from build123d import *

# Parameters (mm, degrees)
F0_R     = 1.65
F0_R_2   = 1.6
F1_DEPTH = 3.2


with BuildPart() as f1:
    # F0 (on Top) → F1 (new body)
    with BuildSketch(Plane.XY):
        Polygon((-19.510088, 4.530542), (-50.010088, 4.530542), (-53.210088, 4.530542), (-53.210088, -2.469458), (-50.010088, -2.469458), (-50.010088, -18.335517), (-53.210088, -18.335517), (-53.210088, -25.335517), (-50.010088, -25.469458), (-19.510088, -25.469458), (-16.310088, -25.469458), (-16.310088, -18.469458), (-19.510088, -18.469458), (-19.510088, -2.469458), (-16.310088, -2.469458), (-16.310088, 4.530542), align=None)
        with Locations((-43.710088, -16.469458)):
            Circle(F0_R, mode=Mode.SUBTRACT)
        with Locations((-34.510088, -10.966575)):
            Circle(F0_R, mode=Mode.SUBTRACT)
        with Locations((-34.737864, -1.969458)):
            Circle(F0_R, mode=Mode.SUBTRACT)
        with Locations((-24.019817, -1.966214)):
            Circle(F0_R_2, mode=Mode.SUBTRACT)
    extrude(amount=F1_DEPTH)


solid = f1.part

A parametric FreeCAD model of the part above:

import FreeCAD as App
import Part
import Sketcher
from FreeCAD import Vector

doc = App.newDocument("Part")
body = doc.addObject("PartDesign::Body", "Body")

sketch1 = doc.addObject("Sketcher::SketchObject", "Sketch")
body.addObject(sketch1)
sketch1.AttachmentSupport = (doc.XY_Plane, [""])
sketch1.MapMode = "FlatFace"
sketch1.addGeometry([
    Part.LineSegment(Vector(-53.2, 4.5, 0), Vector(-53.2, -2.5, 0)),
    Part.LineSegment(Vector(-53.2, -2.5, 0), Vector(-50, -2.5, 0)),
    Part.LineSegment(Vector(-50, -2.5, 0), Vector(-50, -18.3, 0)),
    Part.LineSegment(Vector(-50, -18.3, 0), Vector(-53.2, -18.3, 0)),
    Part.LineSegment(Vector(-53.2, -18.3, 0), Vector(-53.2, -25.3, 0)),
    Part.LineSegment(Vector(-53.2, -25.3, 0), Vector(-50, -25.5, 0)),
    Part.LineSegment(Vector(-50, -25.5, 0), Vector(-16.3, -25.5, 0)),
    Part.LineSegment(Vector(-16.3, -25.5, 0), Vector(-16.3, -18.5, 0)),
    Part.LineSegment(Vector(-16.3, -18.5, 0), Vector(-19.5, -18.5, 0)),
    Part.LineSegment(Vector(-19.5, -18.5, 0), Vector(-19.5, -2.5, 0)),
    Part.LineSegment(Vector(-19.5, -2.5, 0), Vector(-16.3, -2.5, 0)),
    Part.LineSegment(Vector(-16.3, -2.5, 0), Vector(-16.3, 4.5, 0)),
    Part.LineSegment(Vector(-16.3, 4.5, 0), Vector(-53.2, 4.5, 0)),
    Part.Circle(Vector(-43.7, -16.5, 0), Vector(0, 0, 1), 1.6),
    Part.Circle(Vector(-34.5, -11, 0), Vector(0, 0, 1), 1.6),
    Part.Circle(Vector(-34.7, -2, 0), Vector(0, 0, 1), 1.6),
    Part.Circle(Vector(-24, -2, 0), Vector(0, 0, 1), 1.6),
], False)
sketch1.addConstraint([
    Sketcher.Constraint("Coincident", 0, 2, 1, 1),
    Sketcher.Constraint("Coincident", 1, 2, 2, 1),
    Sketcher.Constraint("Coincident", 2, 2, 3, 1),
    Sketcher.Constraint("Coincident", 3, 2, 4, 1),
    Sketcher.Constraint("Coincident", 4, 2, 5, 1),
    Sketcher.Constraint("Coincident", 5, 2, 6, 1),
    Sketcher.Constraint("Coincident", 6, 2, 7, 1),
    Sketcher.Constraint("Coincident", 7, 2, 8, 1),
    Sketcher.Constraint("Coincident", 8, 2, 9, 1),
    Sketcher.Constraint("Coincident", 9, 2, 10, 1),
    Sketcher.Constraint("Coincident", 10, 2, 11, 1),
    Sketcher.Constraint("Coincident", 11, 2, 12, 1),
    Sketcher.Constraint("Coincident", 12, 2, 0, 1),
    Sketcher.Constraint("Vertical", 0),
    Sketcher.Constraint("Horizontal", 1),
    Sketcher.Constraint("Vertical", 2),
    Sketcher.Constraint("Horizontal", 3),
    Sketcher.Constraint("Vertical", 4),
    Sketcher.Constraint("Horizontal", 6),
    Sketcher.Constraint("Vertical", 7),
    Sketcher.Constraint("Horizontal", 8),
    Sketcher.Constraint("Vertical", 9),
    Sketcher.Constraint("Horizontal", 10),
    Sketcher.Constraint("Vertical", 11),
    Sketcher.Constraint("Horizontal", 12),
    Sketcher.Constraint("Equal", 13, 14),
    Sketcher.Constraint("Equal", 14, 15),
    Sketcher.Constraint("Horizontal", 1, 2, 9, 2),
    Sketcher.Constraint("Vertical", 0, 2, 3, 2),
    Sketcher.Constraint("Vertical", 2, 2, 5, 2),
    Sketcher.Constraint("Vertical", 7, 2, 10, 2),
    Sketcher.Constraint("Equal", 3, 8),
    Sketcher.Constraint("Equal", 0, 4),
    Sketcher.Constraint("Equal", 4, 7),
    Sketcher.Constraint("Diameter", 13, 3.3),
    Sketcher.Constraint("Diameter", 16, 3.2),
    Sketcher.Constraint("DistanceY", 0, 2, 0, 1, 7.0),
    Sketcher.Constraint("DistanceY", 9, 1, 9, 2, 16.0),
    Sketcher.Constraint("DistanceX", 1, 1, 1, 2, 3.2),
    Sketcher.Constraint("DistanceX", 6, 1, 6, 2, 33.7),
    Sketcher.Constraint("DistanceY", 13, 3, 0, 2, 14.0),
    Sketcher.Constraint("DistanceX", 14, 3, 8, 2, 15.0),
    Sketcher.Constraint("DistanceX", 13, 3, 14, 3, 9.2),
    Sketcher.Constraint("DistanceY", 13, 3, 15, 3, 14.5),
    Sketcher.Constraint("Distance", 5, 3.202802),
    Sketcher.Constraint("DistanceX", 14, 3, -1, 1, 34.510088),
    Sketcher.Constraint("DistanceY", -1, 1, 11, 2, 4.530542),
    Sketcher.Constraint("DistanceX", 14, 3, 16, 3, 10.490271),
    Sketcher.Constraint("DistanceY", 14, 3, 16, 3, 9.000361),
    Sketcher.Constraint("DistanceY", 2, 2, 14, 3, 7.368942),
    Sketcher.Constraint("DistanceX", 15, 3, -1, 1, 34.737864),
])
pad1 = doc.addObject("PartDesign::Pad", "Pad")
body.addObject(pad1)
pad1.Profile = sketch1
pad1.Length = 3.2

doc.recompute()
